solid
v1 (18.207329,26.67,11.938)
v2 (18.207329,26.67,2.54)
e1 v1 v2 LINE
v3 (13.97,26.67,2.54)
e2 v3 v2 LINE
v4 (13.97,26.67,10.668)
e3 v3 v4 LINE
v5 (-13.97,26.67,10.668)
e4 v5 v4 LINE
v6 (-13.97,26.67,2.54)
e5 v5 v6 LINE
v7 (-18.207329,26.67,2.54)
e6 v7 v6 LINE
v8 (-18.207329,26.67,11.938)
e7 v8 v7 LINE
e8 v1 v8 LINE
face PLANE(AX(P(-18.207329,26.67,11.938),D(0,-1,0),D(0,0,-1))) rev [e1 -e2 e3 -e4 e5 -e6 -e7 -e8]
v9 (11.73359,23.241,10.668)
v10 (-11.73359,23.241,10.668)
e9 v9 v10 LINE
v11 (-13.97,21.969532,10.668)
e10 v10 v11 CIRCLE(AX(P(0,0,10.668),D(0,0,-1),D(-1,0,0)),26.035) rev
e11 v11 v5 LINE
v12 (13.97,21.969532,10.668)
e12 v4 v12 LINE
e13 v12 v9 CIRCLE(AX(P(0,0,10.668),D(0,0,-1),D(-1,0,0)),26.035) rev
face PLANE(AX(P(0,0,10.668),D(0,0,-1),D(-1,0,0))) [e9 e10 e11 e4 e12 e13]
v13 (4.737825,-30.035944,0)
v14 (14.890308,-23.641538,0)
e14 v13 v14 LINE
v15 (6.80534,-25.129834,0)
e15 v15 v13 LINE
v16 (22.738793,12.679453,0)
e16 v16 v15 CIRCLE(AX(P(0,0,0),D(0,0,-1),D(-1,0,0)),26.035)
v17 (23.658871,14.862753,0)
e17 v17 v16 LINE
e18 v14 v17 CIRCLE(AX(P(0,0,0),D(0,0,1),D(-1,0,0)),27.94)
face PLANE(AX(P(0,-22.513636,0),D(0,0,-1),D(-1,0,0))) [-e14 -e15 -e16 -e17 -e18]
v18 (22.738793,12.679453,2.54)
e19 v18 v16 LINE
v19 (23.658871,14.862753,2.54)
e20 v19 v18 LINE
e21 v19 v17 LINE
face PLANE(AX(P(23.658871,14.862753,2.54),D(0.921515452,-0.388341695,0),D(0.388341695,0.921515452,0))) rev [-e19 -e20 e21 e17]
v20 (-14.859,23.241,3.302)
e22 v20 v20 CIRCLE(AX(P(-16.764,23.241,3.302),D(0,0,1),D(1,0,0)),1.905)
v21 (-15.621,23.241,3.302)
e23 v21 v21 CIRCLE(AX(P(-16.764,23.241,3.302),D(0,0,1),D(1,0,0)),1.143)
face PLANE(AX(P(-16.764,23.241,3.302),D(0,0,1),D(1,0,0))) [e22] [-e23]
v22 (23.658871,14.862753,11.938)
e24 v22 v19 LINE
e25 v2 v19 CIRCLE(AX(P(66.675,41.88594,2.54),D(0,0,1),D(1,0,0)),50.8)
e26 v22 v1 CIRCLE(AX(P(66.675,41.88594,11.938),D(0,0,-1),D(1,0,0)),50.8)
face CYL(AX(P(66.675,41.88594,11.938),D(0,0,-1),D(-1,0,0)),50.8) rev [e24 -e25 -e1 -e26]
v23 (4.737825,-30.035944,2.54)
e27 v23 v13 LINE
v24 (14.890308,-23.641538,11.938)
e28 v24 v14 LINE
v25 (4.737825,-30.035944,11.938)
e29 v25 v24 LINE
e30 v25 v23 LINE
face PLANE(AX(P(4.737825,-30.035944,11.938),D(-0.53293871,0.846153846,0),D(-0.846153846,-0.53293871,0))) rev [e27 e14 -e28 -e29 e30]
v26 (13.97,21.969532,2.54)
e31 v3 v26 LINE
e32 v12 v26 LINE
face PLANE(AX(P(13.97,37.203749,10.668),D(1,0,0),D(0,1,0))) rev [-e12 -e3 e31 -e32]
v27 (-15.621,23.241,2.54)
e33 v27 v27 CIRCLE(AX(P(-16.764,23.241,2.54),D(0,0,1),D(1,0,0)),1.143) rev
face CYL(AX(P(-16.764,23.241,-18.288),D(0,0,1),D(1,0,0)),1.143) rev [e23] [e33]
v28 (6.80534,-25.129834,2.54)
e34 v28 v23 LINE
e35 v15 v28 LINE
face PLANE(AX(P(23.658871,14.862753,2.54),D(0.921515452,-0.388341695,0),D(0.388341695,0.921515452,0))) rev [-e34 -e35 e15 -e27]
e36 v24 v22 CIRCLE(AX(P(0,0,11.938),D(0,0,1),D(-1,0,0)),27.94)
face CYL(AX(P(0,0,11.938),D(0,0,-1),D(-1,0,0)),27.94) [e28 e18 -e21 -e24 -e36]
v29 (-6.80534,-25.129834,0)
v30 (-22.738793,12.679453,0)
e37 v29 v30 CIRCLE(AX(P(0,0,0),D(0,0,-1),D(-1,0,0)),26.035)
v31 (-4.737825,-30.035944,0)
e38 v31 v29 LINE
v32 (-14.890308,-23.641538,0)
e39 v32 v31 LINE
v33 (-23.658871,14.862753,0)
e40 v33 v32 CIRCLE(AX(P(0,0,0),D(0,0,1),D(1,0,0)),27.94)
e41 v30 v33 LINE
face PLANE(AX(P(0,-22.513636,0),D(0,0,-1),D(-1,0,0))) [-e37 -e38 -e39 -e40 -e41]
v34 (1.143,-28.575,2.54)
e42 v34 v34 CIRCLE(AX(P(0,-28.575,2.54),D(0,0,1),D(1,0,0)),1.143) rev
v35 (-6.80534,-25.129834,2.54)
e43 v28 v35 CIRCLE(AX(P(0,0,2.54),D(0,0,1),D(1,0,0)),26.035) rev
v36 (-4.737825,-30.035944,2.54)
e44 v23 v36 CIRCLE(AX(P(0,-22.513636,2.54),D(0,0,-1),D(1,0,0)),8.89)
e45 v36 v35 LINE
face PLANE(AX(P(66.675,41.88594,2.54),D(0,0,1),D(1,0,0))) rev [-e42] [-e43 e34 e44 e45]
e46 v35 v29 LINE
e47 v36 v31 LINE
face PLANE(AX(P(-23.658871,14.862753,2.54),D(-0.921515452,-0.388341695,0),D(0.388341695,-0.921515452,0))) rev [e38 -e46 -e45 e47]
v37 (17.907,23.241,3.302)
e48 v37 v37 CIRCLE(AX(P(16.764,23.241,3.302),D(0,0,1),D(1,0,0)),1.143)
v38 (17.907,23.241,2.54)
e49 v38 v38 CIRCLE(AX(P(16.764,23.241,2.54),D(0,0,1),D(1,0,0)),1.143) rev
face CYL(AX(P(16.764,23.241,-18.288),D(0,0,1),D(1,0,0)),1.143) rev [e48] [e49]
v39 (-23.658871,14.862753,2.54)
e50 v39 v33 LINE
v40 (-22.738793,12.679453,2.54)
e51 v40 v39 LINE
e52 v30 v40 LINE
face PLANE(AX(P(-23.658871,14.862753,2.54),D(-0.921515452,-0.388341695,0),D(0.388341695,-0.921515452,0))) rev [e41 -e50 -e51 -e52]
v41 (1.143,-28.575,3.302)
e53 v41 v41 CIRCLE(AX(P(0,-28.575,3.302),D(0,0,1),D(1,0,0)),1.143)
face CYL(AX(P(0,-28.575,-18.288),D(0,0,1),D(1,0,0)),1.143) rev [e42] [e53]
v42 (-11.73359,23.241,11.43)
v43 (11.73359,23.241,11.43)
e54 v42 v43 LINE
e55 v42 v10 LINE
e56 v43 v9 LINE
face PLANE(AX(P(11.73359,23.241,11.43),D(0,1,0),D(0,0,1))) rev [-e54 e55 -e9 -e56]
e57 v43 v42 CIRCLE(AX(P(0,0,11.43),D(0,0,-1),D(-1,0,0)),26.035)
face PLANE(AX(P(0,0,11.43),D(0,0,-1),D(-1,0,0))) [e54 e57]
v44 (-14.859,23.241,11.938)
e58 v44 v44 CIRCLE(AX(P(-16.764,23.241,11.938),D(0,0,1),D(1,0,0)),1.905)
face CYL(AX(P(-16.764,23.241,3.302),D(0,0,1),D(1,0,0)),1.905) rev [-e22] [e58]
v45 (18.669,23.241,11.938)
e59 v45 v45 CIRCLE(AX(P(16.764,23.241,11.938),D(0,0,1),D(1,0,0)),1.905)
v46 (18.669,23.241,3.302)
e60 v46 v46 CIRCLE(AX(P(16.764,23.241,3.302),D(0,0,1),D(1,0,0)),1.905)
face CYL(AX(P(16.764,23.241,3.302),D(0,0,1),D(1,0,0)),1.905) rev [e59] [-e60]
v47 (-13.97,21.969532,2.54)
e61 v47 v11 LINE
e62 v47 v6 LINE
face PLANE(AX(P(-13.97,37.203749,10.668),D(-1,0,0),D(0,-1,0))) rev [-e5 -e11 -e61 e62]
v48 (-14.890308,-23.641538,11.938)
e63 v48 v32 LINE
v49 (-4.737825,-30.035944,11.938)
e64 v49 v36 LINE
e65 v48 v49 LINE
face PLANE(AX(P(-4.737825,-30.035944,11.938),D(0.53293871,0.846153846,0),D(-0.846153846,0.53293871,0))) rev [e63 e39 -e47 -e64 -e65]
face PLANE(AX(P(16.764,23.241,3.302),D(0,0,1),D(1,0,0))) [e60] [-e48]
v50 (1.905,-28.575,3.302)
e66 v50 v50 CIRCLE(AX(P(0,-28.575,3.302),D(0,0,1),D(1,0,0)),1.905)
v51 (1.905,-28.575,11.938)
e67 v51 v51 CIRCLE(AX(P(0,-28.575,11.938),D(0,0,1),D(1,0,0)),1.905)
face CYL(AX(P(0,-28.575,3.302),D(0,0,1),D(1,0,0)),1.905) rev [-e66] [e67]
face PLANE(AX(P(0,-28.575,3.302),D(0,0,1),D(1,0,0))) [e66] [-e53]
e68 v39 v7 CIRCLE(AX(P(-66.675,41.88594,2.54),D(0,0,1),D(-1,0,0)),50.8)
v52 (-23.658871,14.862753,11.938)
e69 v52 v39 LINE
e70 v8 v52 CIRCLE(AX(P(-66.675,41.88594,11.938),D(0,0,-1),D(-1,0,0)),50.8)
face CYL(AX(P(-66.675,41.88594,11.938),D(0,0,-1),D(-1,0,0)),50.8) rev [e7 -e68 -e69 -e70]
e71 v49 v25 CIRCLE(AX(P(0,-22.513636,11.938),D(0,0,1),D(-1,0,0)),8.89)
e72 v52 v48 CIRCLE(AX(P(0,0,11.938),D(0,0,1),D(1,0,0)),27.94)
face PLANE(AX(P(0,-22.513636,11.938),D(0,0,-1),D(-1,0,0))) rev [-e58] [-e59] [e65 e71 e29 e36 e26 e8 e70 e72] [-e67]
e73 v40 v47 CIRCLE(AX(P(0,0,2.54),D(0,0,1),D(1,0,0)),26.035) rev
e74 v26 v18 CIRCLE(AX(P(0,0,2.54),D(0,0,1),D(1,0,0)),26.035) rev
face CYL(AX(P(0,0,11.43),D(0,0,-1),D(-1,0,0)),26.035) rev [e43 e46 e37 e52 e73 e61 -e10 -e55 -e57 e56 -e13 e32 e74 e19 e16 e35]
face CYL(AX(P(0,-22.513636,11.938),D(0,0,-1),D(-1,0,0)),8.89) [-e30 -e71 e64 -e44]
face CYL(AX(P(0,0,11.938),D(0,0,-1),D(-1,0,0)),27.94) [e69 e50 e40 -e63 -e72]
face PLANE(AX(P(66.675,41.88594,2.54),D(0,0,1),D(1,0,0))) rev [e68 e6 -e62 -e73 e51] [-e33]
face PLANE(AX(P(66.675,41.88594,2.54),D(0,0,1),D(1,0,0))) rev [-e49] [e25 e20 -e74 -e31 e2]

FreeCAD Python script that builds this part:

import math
import FreeCAD as App
import Part
import Sketcher
from FreeCAD import Vector
Q = App.Units.Quantity


def add_polygon(sketch, points):
    """Adds a closed chain of lines whose ends are joined by coincident constraints."""
    first, n = sketch.GeometryCount, len(points)
    for a, b in zip(points, points[1:] + points[:1]):
        sketch.addGeometry(Part.LineSegment(App.Vector(*a, 0), App.Vector(*b, 0)), False)
    for i in range(n):
        sketch.addConstraint(Sketcher.Constraint("Coincident", first + i, 2, first + (i + 1) % n, 1))

doc = App.newDocument("Part")
body = doc.addObject("PartDesign::Body", "Body")

# Sketch on XY plane
sketch1 = doc.addObject("Sketcher::SketchObject", "Sketch")
body.addObject(sketch1)
sketch1.AttachmentSupport = (doc.XY_Plane, [""])
sketch1.MapMode = "FlatFace"
sketch1.addGeometry([
    Part.LineSegment(Vector(-15, -24, 0), Vector(-5, -30, 0)),  # 0
    Part.ArcOfCircle(Part.Circle(Vector(0, -23, 0), Vector(0, 0, 1), 9), math.radians(-122), math.radians(-58)),  # 1
    Part.LineSegment(Vector(5, -30, 0), Vector(15, -24, 0)),  # 2
    Part.ArcOfCircle(Part.Circle(Vector(0, 0, 0), Vector(0, 0, 1), 28), math.radians(-58), math.radians(32)),  # 3
    Part.ArcOfCircle(Part.Circle(Vector(67, 42, 0), Vector(0, 0, 1), 51), math.radians(-162.57), math.radians(-147.86)),  # 4
    Part.LineSegment(Vector(18, 27, 0), Vector(-18, 27, 0)),  # 5
    Part.ArcOfCircle(Part.Circle(Vector(-67, 42, 0), Vector(0, 0, 1), 51), math.radians(-32.14), math.radians(-17.43)),  # 6
    Part.ArcOfCircle(Part.Circle(Vector(0, 0, 0), Vector(0, 0, 1), 28), math.radians(148), math.radians(238)),  # 7
], False)
sketch1.addConstraint([
    Sketcher.Constraint("Tangent", 0, 2, 1, 1),
    Sketcher.Constraint("Tangent", 1, 2, 2, 1),
    Sketcher.Constraint("Tangent", 2, 2, 3, 1),
    Sketcher.Constraint("Tangent", 3, 2, 4, 2),
    Sketcher.Constraint("Coincident", 4, 1, 5, 1),
    Sketcher.Constraint("Coincident", 5, 2, 6, 2),
    Sketcher.Constraint("Tangent", 6, 1, 7, 1),
    Sketcher.Constraint("Tangent", 7, 2, 0, 1),
    Sketcher.Constraint("Horizontal", 5),
    Sketcher.Constraint("Coincident", 3, 3, -1, 1),
    Sketcher.Constraint("Coincident", 7, 3, -1, 1),
    Sketcher.Constraint("Equal", 4, 6),
    Sketcher.Constraint("Equal", 3, 7),
    Sketcher.Constraint("PointOnObject", 1, 3, -2),
    Sketcher.Constraint("Horizontal", 4, 3, 6, 3),
    Sketcher.Constraint("Radius", 4, Q("2 in")),
    Sketcher.Constraint("Radius", 3, Q("1.1 in")),
    Sketcher.Constraint("Radius", 1, Q("0.35 in")),
    Sketcher.Constraint("DistanceY", -1, 1, 4, 1, Q("1.05 in")),
    Sketcher.Constraint("DistanceX", 6, 3, 4, 3, Q("5.25 in")),
    Sketcher.Constraint("Distance", 0, Q("11.998388 mm")),
])
pad1 = doc.addObject("PartDesign::Pad", "Pad")
body.addObject(pad1)
pad1.Profile = sketch1
pad1.Length = Q("0.47 in")

# Sketch on XY plane
sketch2 = doc.addObject("Sketcher::SketchObject", "Sketch001")
body.addObject(sketch2)
sketch2.AttachmentSupport = (doc.XY_Plane, [""])
sketch2.MapMode = "FlatFace"
sketch2.addGeometry([
    Part.LineSegment(Vector(-12, 23, 0), Vector(12, 23, 0)),
    Part.ArcOfCircle(Part.Circle(Vector(0, 0, 0), Vector(0, 0, 1), 26), math.radians(117), math.radians(423)),
], False)
sketch2.addConstraint([
    Sketcher.Constraint("Coincident", 0, 1, 1, 1),
    Sketcher.Constraint("Coincident", 1, 2, 0, 2),
    Sketcher.Constraint("Horizontal", 0),
    Sketcher.Constraint("Coincident", 1, 3, -1, 1),
    Sketcher.Constraint("Radius", 1, Q("1.025 in")),
    Sketcher.Constraint("DistanceY", -1, 1, 0, 1, Q("0.915 in")),
])
pocket1 = doc.addObject("PartDesign::Pocket", "Pocket")
body.addObject(pocket1)
pocket1.Profile = sketch2
pocket1.Length = Q("0.45 in")
pocket1.Reversed = True

# Sketch on XY plane
sketch3 = doc.addObject("Sketcher::SketchObject", "Sketch002")
body.addObject(sketch3)
sketch3.AttachmentSupport = (doc.XY_Plane, [""])
sketch3.MapMode = "FlatFace"
add_polygon(sketch3, [(14, 37), (14, 11), (-14, 11), (-14, 37)])  # lines 0-3
sketch3.addConstraint([
    Sketcher.Constraint("Vertical", 0),
    Sketcher.Constraint("Horizontal", 1),
    Sketcher.Constraint("Vertical", 2),
    Sketcher.Constraint("Horizontal", 3),
    Sketcher.Constraint("DistanceX", 1, 2, 1, 1, Q("1.1 in")),
    Sketcher.Constraint("DistanceX", -1, 1, 0, 2, Q("0.55 in")),
    Sketcher.Constraint("DistanceY", 0, 2, 0, 1, Q("25.845943 mm")),
    Sketcher.Constraint("DistanceY", -1, 1, 2, 2, Q("37.203749 mm")),
])
pocket2 = doc.addObject("PartDesign::Pocket", "Pocket001")
body.addObject(pocket2)
pocket2.Profile = sketch3
pocket2.Length = Q("0.42 in")
pocket2.Reversed = True

# Sketch on XY plane
sketch4 = doc.addObject("Sketcher::SketchObject", "Sketch003")
body.addObject(sketch4)
sketch4.AttachmentSupport = (doc.XY_Plane, [""])
sketch4.MapMode = "FlatFace"
sketch4.AttachmentOffset = App.Placement(Vector(0, 0, 0.47 * 25.4), App.Rotation())
sketch4.addGeometry([
    Part.Circle(Vector(0, -28.6, 0), Vector(0, 0, 1), 1.9),
    Part.Circle(Vector(-16.8, 23.2, 0), Vector(0, 0, 1), 1.9),
    Part.Circle(Vector(16.8, 23.2, 0), Vector(0, 0, 1), 1.9),
], False)
sketch4.addConstraint([
    Sketcher.Constraint("Equal", 0, 1),
    Sketcher.Constraint("Equal", 1, 2),
    Sketcher.Constraint("Symmetric", 1, 3, 2, 3, -2),
    Sketcher.Constraint("PointOnObject", 0, 3, -2),
    Sketcher.Constraint("Diameter", 0, Q("0.15 in")),
    Sketcher.Constraint("DistanceX", 1, 3, -1, 1, Q("0.66 in")),
    Sketcher.Constraint("DistanceY", 0, 3, 1, 3, Q("2.04 in")),
    Sketcher.Constraint("DistanceY", 0, 3, -1, 1, Q("1.125 in")),
])
pocket3 = doc.addObject("PartDesign::Pocket", "Pocket002")
body.addObject(pocket3)
pocket3.Profile = sketch4
pocket3.Length = Q("0.34 in")

# Sketch on XY plane
sketch5 = doc.addObject("Sketcher::SketchObject", "Sketch004")
body.addObject(sketch5)
sketch5.AttachmentSupport = (doc.XY_Plane, [""])
sketch5.MapMode = "FlatFace"
sketch5.AttachmentOffset = App.Placement(Vector(0, 0, 0.13 * 25.4), App.Rotation())
sketch5.addGeometry([
    Part.Circle(Vector(-16.8, 23.2, 0), Vector(0, 0, 1), 1.1),
    Part.Circle(Vector(16.8, 23.2, 0), Vector(0, 0, 1), 1.1),
    Part.Circle(Vector(0, -28.6, 0), Vector(0, 0, 1), 1.1),
], False)
sketch5.addConstraint([
    Sketcher.Constraint("Equal", 0, 1),
    Sketcher.Constraint("Equal", 1, 2),
    Sketcher.Constraint("Symmetric", 0, 3, 1, 3, -2),
    Sketcher.Constraint("PointOnObject", 2, 3, -2),
    Sketcher.Constraint("Diameter", 0, Q("0.09 in")),
    Sketcher.Constraint("DistanceX", 0, 3, -1, 1, Q("0.66 in")),
    Sketcher.Constraint("DistanceY", 2, 3, 0, 3, Q("2.04 in")),
    Sketcher.Constraint("DistanceY", -1, 1, 0, 3, Q("0.915 in")),
])
pocket4 = doc.addObject("PartDesign::Pocket", "Pocket003")
body.addObject(pocket4)
pocket4.Profile = sketch5
pocket4.Length = Q("0.85 in")

# Sketch on XY plane
sketch6 = doc.addObject("Sketcher::SketchObject", "Sketch005")
body.addObject(sketch6)
sketch6.AttachmentSupport = (doc.XY_Plane, [""])
sketch6.MapMode = "FlatFace"
sketch6.addGeometry([
    Part.LineSegment(Vector(24, 15, 0), Vector(5, -30, 0)),  # 0
    Part.ArcOfCircle(Part.Circle(Vector(0, -23, 0), Vector(0, 0, 1), 9), math.radians(-122), math.radians(-58)),  # 1
    Part.LineSegment(Vector(-5, -30, 0), Vector(-24, 15, 0)),  # 2
    Part.ArcOfCircle(Part.Circle(Vector(-67, 42, 0), Vector(0, 0, 1), 51), math.radians(-32.14), math.radians(-17.43)),  # 3
    Part.LineSegment(Vector(-18, 27, 0), Vector(18, 27, 0)),  # 4
    Part.ArcOfCircle(Part.Circle(Vector(67, 42, 0), Vector(0, 0, 1), 51), math.radians(-162.57), math.radians(-147.86)),  # 5
], False)
sketch6.addConstraint([
    Sketcher.Constraint("Coincident", 0, 2, 1, 2),
    Sketcher.Constraint("Coincident", 1, 1, 2, 1),
    Sketcher.Constraint("Coincident", 2, 2, 3, 1),
    Sketcher.Constraint("Coincident", 3, 2, 4, 1),
    Sketcher.Constraint("Coincident", 4, 2, 5, 1),
    Sketcher.Constraint("Coincident", 5, 2, 0, 1),
    Sketcher.Constraint("Horizontal", 4),
    Sketcher.Constraint("Equal", 3, 5),
    Sketcher.Constraint("Symmetric", 3, 3, 5, 3, -2),
    Sketcher.Constraint("Symmetric", 0, 2, 1, 1, -2),
    Sketcher.Constraint("Horizontal", 2, 2, 5, 2),
    Sketcher.Constraint("Radius", 3, Q("2 in")),
    Sketcher.Constraint("Radius", 1, Q("0.35 in")),
    Sketcher.Constraint("DistanceY", -1, 1, 3, 2, Q("1.05 in")),
    Sketcher.Constraint("DistanceX", 3, 3, 5, 3, Q("5.25 in")),
    Sketcher.Constraint("DistanceX", 2, 2, 4, 2, Q("41.8662 mm")),
    Sketcher.Constraint("DistanceX", 4, 1, 4, 2, Q("36.414657 mm")),
    Sketcher.Constraint("DistanceX", 1, 1, 0, 2, Q("9.47565 mm")),
    Sketcher.Constraint("DistanceY", 1, 3, 2, 2, Q("37.376389 mm")),
])
pocket5 = doc.addObject("PartDesign::Pocket", "Pocket004")
body.addObject(pocket5)
pocket5.Profile = sketch6
pocket5.Length = Q("0.1 in")
pocket5.Reversed = True

doc.recompute()
